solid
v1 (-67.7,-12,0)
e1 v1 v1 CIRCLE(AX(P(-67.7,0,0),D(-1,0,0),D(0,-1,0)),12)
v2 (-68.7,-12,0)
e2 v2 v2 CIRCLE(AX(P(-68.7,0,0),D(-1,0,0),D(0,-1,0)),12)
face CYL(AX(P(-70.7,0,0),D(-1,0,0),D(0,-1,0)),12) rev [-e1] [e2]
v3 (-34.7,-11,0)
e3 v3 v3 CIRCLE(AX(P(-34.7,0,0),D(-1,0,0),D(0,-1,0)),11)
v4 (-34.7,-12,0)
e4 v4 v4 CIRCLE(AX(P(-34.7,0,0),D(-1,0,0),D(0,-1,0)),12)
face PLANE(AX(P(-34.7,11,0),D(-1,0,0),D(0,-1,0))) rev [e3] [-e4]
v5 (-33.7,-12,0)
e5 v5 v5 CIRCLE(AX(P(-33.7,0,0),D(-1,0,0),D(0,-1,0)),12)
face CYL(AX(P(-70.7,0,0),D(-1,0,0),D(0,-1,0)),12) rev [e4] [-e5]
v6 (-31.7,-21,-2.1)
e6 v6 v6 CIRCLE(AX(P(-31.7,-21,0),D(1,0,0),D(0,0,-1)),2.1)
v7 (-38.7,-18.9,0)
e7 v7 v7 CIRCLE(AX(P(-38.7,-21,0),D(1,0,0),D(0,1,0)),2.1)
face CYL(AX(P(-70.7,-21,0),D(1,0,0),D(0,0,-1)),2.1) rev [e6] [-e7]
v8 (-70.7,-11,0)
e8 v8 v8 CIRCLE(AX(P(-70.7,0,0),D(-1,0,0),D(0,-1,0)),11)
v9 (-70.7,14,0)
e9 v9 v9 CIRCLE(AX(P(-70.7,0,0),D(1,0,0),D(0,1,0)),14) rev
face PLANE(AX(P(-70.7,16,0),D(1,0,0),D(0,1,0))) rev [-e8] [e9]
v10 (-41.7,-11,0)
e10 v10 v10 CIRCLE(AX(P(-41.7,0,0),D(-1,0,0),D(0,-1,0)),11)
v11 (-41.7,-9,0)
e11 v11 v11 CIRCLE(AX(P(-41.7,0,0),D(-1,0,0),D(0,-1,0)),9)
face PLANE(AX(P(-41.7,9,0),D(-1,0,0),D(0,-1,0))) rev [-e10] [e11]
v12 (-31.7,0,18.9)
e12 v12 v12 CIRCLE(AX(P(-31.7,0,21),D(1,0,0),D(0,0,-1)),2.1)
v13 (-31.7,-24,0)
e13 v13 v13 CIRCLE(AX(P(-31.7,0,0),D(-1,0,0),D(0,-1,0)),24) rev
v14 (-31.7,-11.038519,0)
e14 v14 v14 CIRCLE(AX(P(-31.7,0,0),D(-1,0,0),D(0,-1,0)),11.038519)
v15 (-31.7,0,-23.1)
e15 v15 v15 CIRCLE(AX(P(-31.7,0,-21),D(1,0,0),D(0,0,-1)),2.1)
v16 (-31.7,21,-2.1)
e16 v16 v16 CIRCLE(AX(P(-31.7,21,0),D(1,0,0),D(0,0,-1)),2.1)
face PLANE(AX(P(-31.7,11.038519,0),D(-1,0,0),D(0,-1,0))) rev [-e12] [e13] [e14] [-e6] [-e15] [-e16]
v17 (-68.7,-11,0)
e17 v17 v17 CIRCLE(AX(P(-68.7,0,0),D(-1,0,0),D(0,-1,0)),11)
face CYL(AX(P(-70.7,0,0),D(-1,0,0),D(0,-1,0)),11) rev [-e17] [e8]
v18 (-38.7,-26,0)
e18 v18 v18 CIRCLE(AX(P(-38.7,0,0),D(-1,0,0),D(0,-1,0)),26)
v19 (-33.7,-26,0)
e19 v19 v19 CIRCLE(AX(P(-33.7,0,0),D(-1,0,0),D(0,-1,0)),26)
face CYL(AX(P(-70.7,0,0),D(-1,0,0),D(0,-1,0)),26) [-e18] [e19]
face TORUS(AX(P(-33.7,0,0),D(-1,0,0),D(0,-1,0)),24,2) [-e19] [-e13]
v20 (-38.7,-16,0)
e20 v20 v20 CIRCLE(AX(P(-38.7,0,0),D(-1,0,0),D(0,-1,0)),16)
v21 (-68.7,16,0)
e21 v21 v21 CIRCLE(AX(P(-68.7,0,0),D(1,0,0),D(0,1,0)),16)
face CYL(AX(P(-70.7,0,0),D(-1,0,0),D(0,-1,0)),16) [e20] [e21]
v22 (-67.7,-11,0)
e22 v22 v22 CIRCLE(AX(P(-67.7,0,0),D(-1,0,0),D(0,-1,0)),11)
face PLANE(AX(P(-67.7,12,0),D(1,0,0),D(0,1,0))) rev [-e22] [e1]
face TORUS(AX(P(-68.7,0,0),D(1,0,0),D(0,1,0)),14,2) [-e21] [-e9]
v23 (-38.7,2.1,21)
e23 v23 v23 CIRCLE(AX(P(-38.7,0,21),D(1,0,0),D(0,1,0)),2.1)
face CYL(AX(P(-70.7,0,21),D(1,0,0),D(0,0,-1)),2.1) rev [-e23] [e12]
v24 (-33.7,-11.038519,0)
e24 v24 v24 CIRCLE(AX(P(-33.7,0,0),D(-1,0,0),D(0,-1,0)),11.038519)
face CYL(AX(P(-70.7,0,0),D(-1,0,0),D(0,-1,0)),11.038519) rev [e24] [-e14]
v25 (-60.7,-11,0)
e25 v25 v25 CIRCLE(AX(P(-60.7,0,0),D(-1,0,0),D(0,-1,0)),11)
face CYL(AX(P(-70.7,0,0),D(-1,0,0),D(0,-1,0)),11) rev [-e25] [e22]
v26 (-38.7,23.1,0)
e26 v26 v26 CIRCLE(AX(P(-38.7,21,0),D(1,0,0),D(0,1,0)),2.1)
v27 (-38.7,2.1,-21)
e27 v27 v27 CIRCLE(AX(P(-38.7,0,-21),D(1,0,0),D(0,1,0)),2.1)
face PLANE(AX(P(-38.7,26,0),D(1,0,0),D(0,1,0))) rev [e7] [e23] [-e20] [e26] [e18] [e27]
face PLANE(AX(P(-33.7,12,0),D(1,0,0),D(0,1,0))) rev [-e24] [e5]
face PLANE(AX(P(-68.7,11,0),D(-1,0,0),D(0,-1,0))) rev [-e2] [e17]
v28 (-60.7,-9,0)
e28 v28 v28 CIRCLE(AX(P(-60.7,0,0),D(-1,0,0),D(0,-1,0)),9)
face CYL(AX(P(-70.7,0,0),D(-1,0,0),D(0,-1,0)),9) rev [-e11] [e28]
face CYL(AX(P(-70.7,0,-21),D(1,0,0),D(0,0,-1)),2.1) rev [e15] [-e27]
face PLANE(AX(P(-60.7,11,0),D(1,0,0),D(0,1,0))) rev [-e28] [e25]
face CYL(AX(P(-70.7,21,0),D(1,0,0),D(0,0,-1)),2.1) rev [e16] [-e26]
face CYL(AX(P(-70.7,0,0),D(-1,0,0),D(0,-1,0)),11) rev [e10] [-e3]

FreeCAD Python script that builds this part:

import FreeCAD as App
import Part
import Sketcher
from FreeCAD import Vector
Q = App.Units.Quantity


def edges_at(feature, points):
    """Names of the edges that pass closest to the given points."""
    edges = feature.Shape.Edges
    near = lambda p: min(range(len(edges)), key=lambda i: edges[i].distToShape(Part.Vertex(*p))[0])
    return sorted({f"Edge{near(p) + 1}" for p in points})

doc = App.newDocument("Part")
body = doc.addObject("PartDesign::Body", "Body")

sketch1 = doc.addObject("Sketcher::SketchObject", "Sketch")
body.addObject(sketch1)
sketch1.AttachmentSupport = (doc.XY_Plane, [""])
sketch1.MapMode = "FlatFace"
sketch1.addGeometry([
    Part.LineSegment(Vector(-70.7, 11, 0), Vector(-68.7, 11, 0)),
    Part.LineSegment(Vector(-68.7, 11, 0), Vector(-68.7, 12, 0)),
    Part.LineSegment(Vector(-68.7, 12, 0), Vector(-67.7, 12, 0)),
    Part.LineSegment(Vector(-67.7, 12, 0), Vector(-67.7, 11, 0)),
    Part.LineSegment(Vector(-67.7, 11, 0), Vector(-60.7, 11, 0)),
    Part.LineSegment(Vector(-60.7, 11, 0), Vector(-60.7, 9, 0)),
    Part.LineSegment(Vector(-60.7, 9, 0), Vector(-41.7, 9, 0)),
    Part.LineSegment(Vector(-41.7, 9, 0), Vector(-41.7, 11, 0)),
    Part.LineSegment(Vector(-41.7, 11, 0), Vector(-34.7, 11, 0)),
    Part.LineSegment(Vector(-34.7, 11, 0), Vector(-34.7, 12, 0)),
    Part.LineSegment(Vector(-34.7, 12, 0), Vector(-33.7, 12, 0)),
    Part.LineSegment(Vector(-33.7, 12, 0), Vector(-33.7, 11, 0)),
    Part.LineSegment(Vector(-33.7, 11, 0), Vector(-31.7, 11, 0)),
    Part.LineSegment(Vector(-31.7, 11, 0), Vector(-31.7, 26, 0)),
    Part.LineSegment(Vector(-31.7, 26, 0), Vector(-38.7, 26, 0)),
    Part.LineSegment(Vector(-38.7, 26, 0), Vector(-38.7, 16, 0)),
    Part.LineSegment(Vector(-38.7, 16, 0), Vector(-70.7, 16, 0)),
    Part.LineSegment(Vector(-70.7, 16, 0), Vector(-70.7, 11, 0)),
], False)
sketch1.addConstraint([
    Sketcher.Constraint("Coincident", 0, 2, 1, 1),
    Sketcher.Constraint("Coincident", 1, 2, 2, 1),
    Sketcher.Constraint("Coincident", 2, 2, 3, 1),
    Sketcher.Constraint("Coincident", 3, 2, 4, 1),
    Sketcher.Constraint("Coincident", 4, 2, 5, 1),
    Sketcher.Constraint("Coincident", 5, 2, 6, 1),
    Sketcher.Constraint("Coincident", 6, 2, 7, 1),
    Sketcher.Constraint("Coincident", 7, 2, 8, 1),
    Sketcher.Constraint("Coincident", 8, 2, 9, 1),
    Sketcher.Constraint("Coincident", 9, 2, 10, 1),
    Sketcher.Constraint("Coincident", 10, 2, 11, 1),
    Sketcher.Constraint("Coincident", 11, 2, 12, 1),
    Sketcher.Constraint("Coincident", 12, 2, 13, 1),
    Sketcher.Constraint("Coincident", 13, 2, 14, 1),
    Sketcher.Constraint("Coincident", 14, 2, 15, 1),
    Sketcher.Constraint("Coincident", 15, 2, 16, 1),
    Sketcher.Constraint("Coincident", 16, 2, 17, 1),
    Sketcher.Constraint("Coincident", 17, 2, 0, 1),
    Sketcher.Constraint("Horizontal", 0),
    Sketcher.Constraint("Vertical", 1),
    Sketcher.Constraint("Horizontal", 2),
    Sketcher.Constraint("Vertical", 3),
    Sketcher.Constraint("Horizontal", 4),
    Sketcher.Constraint("Vertical", 5),
    Sketcher.Constraint("Horizontal", 6),
    Sketcher.Constraint("Vertical", 7),
    Sketcher.Constraint("Horizontal", 8),
    Sketcher.Constraint("Vertical", 9),
    Sketcher.Constraint("Horizontal", 10),
    Sketcher.Constraint("Vertical", 11),
    Sketcher.Constraint("Horizontal", 12),
    Sketcher.Constraint("Vertical", 13),
    Sketcher.Constraint("Horizontal", 14),
    Sketcher.Constraint("Vertical", 15),
    Sketcher.Constraint("Horizontal", 16),
    Sketcher.Constraint("Vertical", 17),
    Sketcher.Constraint("Horizontal", 0, 2, 3, 2),
    Sketcher.Constraint("Horizontal", 4, 2, 7, 2),
    Sketcher.Constraint("Horizontal", 2, 2, 9, 2),
    Sketcher.Constraint("Equal", 4, 8),
    Sketcher.Constraint("Equal", 2, 10),
    Sketcher.Constraint("Equal", 0, 12),
    Sketcher.Constraint("Equal", 8, 14),
    Sketcher.Constraint("Equal", 10, 1),
    Sketcher.Constraint("Equal", 12, 5),
    Sketcher.Constraint("DistanceX", 0, 1, 0, 2, Q("2 mm")),
    Sketcher.Constraint("DistanceX", 2, 1, 2, 2, Q("1 mm")),
    Sketcher.Constraint("DistanceX", 4, 1, 4, 2, Q("7 mm")),
    Sketcher.Constraint("DistanceX", 6, 1, 6, 2, Q("19 mm")),
    Sketcher.Constraint("DistanceY", 15, 2, 15, 1, Q("10 mm")),
    Sketcher.Constraint("DistanceY", 17, 2, 17, 1, Q("5 mm")),
    Sketcher.Constraint("DistanceY", -1, 1, 0, 2, Q("11 mm")),
    Sketcher.Constraint("DistanceX", 0, 2, -1, 1, Q("68.7 mm")),
    Sketcher.Constraint("DistanceY", 11, 2, 11, 1, Q("0.961481 mm")),
])
revolution = doc.addObject("PartDesign::Revolution", "Revolution")
body.addObject(revolution)
revolution.Profile = sketch1
revolution.ReferenceAxis = (sketch1, ["H_Axis"])
revolution.Angle = 360

sketch2 = doc.addObject("Sketcher::SketchObject", "Sketch001")
body.addObject(sketch2)
sketch2.AttachmentSupport = (doc.YZ_Plane, [""])
sketch2.MapMode = "FlatFace"
sketch2.AttachmentOffset = App.Placement(Vector(0, 0, -31.7), App.Rotation())
sketch2.addGeometry([
    Part.Circle(Vector(21, 0, 0), Vector(0, 0, 1), 2.1),
    Part.Circle(Vector(0, -21, 0), Vector(0, 0, 1), 2.1),
    Part.Circle(Vector(-21, 0, 0), Vector(0, 0, 1), 2.1),
    Part.Circle(Vector(0, 21, 0), Vector(0, 0, 1), 2.1),
], False)
sketch2.addConstraint([
    Sketcher.Constraint("Equal", 0, 1),
    Sketcher.Constraint("Equal", 1, 2),
    Sketcher.Constraint("Equal", 2, 3),
    Sketcher.Constraint("Symmetric", 0, 3, 2, 3, -1, 1),
    Sketcher.Constraint("Symmetric", 1, 3, 3, 3, -1, 1),
    Sketcher.Constraint("PointOnObject", 0, 3, -1),
    Sketcher.Constraint("PointOnObject", 1, 3, -2),
    Sketcher.Constraint("Diameter", 0, Q("4.2 mm")),
    Sketcher.Constraint("DistanceX", -1, 1, 0, 3, Q("21 mm")),
    Sketcher.Constraint("DistanceY", 1, 3, -1, 1, Q("21 mm")),
])
pocket1 = doc.addObject("PartDesign::Pocket", "Pocket")
body.addObject(pocket1)
pocket1.Profile = sketch2
pocket1.Type = "ThroughAll"
doc.recompute()

fillet = doc.addObject("PartDesign::Fillet", "Fillet")
body.addObject(fillet)
fillet.Base = (pocket1, edges_at(pocket1, [(-70.7, 16, 0), (-31.7, 26, 0)]))
fillet.Radius = 2

doc.recompute()
